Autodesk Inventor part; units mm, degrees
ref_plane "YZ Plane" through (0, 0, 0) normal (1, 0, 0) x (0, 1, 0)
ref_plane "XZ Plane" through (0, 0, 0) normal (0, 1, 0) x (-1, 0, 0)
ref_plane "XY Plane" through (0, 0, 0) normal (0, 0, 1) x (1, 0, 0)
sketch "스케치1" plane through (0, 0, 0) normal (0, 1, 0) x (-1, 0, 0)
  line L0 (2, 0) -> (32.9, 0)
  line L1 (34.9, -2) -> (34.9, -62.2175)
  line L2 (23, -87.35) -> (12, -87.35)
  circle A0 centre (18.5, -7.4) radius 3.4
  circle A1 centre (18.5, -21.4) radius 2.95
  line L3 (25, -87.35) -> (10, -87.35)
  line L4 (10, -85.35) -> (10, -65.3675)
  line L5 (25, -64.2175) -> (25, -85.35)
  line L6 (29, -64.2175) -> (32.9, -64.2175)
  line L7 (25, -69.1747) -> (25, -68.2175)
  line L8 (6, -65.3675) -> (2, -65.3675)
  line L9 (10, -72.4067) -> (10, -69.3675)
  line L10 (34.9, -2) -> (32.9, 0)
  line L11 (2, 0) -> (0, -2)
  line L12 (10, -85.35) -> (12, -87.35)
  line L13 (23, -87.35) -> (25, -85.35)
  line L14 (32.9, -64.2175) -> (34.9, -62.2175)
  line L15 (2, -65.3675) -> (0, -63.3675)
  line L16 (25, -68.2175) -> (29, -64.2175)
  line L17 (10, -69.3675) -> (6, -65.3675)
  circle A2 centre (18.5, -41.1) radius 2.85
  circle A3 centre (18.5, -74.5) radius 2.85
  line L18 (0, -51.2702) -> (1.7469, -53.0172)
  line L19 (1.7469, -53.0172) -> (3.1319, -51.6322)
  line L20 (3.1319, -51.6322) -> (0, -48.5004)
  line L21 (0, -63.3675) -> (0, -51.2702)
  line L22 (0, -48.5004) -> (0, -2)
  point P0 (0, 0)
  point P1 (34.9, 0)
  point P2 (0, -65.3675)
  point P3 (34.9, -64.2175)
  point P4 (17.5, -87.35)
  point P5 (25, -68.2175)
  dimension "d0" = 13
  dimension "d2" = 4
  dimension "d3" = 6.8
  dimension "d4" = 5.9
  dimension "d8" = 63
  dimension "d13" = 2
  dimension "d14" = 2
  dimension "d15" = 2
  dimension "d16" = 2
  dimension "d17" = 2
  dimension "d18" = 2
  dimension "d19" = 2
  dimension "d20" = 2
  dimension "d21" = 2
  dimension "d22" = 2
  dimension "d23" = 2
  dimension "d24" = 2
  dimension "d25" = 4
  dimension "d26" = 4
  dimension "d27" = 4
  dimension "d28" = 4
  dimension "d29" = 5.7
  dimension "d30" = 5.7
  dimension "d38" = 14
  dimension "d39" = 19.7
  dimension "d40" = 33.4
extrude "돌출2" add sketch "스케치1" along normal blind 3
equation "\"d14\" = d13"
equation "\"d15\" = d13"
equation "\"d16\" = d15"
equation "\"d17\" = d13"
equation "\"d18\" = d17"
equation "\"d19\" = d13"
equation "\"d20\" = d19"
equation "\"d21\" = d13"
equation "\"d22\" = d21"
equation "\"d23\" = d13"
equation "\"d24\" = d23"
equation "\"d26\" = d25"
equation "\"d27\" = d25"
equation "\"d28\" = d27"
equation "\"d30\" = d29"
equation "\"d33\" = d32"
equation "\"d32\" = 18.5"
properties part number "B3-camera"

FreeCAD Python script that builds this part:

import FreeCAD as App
import Part
import Sketcher
Q = App.Units.Quantity

doc = App.newDocument("Part")
params = doc.addObject("Spreadsheet::Sheet", "Params")
for row, (alias, value) in enumerate([
    ("sketch1_diameter", "5.7 mm"),
    ("sketch1_diameter2", "5.9 mm"),
    ("sketch1_diameter3", "6.8 mm"),
    ("sketch1_width", "4 mm"),
    ("pad1_length", "3 mm"),
], start=1):
    params.set(f"A{row}", alias)
    params.set(f"B{row}", "=" + value)
    params.setAlias(f"B{row}", alias)

body = doc.addObject("PartDesign::Body", "Body")

# Sketch on XZ plane
sketch1 = body.newObject("Sketcher::SketchObject", "Sketch")
sketch1.AttachmentSupport = (doc.getObject("XZ_Plane"), [""])
sketch1.MapMode = "FlatFace"
sketch1.addGeometry([
    Part.LineSegment(App.Vector(-32.9, 0, 0), App.Vector(-2, 0, 0)),  # 0
    Part.LineSegment(App.Vector(-2, 0, 0), App.Vector(0, -2, 0)),  # 1
    Part.LineSegment(App.Vector(0, -2, 0), App.Vector(0, -48.5004, 0)),  # 2
    Part.LineSegment(App.Vector(0, -48.5004, 0), App.Vector(-3.1319, -51.6322, 0)),  # 3
    Part.LineSegment(App.Vector(-3.1319, -51.6322, 0), App.Vector(-1.7469, -53.0172, 0)),  # 4
    Part.LineSegment(App.Vector(-1.7469, -53.0172, 0), App.Vector(0, -51.2702, 0)),  # 5
    Part.LineSegment(App.Vector(0, -51.2702, 0), App.Vector(0, -63.3675, 0)),  # 6
    Part.LineSegment(App.Vector(0, -63.3675, 0), App.Vector(-2, -65.3675, 0)),  # 7
    Part.LineSegment(App.Vector(-2, -65.3675, 0), App.Vector(-6, -65.3675, 0)),  # 8
    Part.LineSegment(App.Vector(-6, -65.3675, 0), App.Vector(-10, -69.3675, 0)),  # 9
    Part.LineSegment(App.Vector(-10, -69.3675, 0), App.Vector(-10, -85.35, 0)),  # 10
    Part.LineSegment(App.Vector(-10, -85.35, 0), App.Vector(-12, -87.35, 0)),  # 11
    Part.LineSegment(App.Vector(-12, -87.35, 0), App.Vector(-23, -87.35, 0)),  # 12
    Part.LineSegment(App.Vector(-23, -87.35, 0), App.Vector(-25, -85.35, 0)),  # 13
    Part.LineSegment(App.Vector(-25, -85.35, 0), App.Vector(-25, -68.2175, 0)),  # 14
    Part.LineSegment(App.Vector(-25, -68.2175, 0), App.Vector(-29, -64.2175, 0)),  # 15
    Part.LineSegment(App.Vector(-29, -64.2175, 0), App.Vector(-32.9, -64.2175, 0)),  # 16
    Part.LineSegment(App.Vector(-32.9, -64.2175, 0), App.Vector(-34.9, -62.2175, 0)),  # 17
    Part.LineSegment(App.Vector(-34.9, -62.2175, 0), App.Vector(-34.9, -2, 0)),  # 18
    Part.LineSegment(App.Vector(-34.9, -2, 0), App.Vector(-32.9, 0, 0)),  # 19
    Part.Circle(App.Vector(-18.5, -74.5, 0), App.Vector(0, 0, 1), 2.85),  # 20
    Part.Circle(App.Vector(-18.5, -41.1, 0), App.Vector(0, 0, 1), 2.85),  # 21
    Part.Circle(App.Vector(-18.5, -21.4, 0), App.Vector(0, 0, 1), 2.95),  # 22
    Part.Circle(App.Vector(-18.5, -7.4, 0), App.Vector(0, 0, 1), 3.4),  # 23
], False)
sketch1.addConstraint([
    Sketcher.Constraint("Coincident", 0, 2, 1, 1),
    Sketcher.Constraint("Coincident", 1, 2, 2, 1),
    Sketcher.Constraint("Coincident", 2, 2, 3, 1),
    Sketcher.Constraint("Coincident", 3, 2, 4, 1),
    Sketcher.Constraint("Coincident", 4, 2, 5, 1),
    Sketcher.Constraint("Coincident", 5, 2, 6, 1),
    Sketcher.Constraint("Coincident", 6, 2, 7, 1),
    Sketcher.Constraint("Coincident", 7, 2, 8, 1),
    Sketcher.Constraint("Coincident", 8, 2, 9, 1),
    Sketcher.Constraint("Coincident", 9, 2, 10, 1),
    Sketcher.Constraint("Coincident", 10, 2, 11, 1),
    Sketcher.Constraint("Coincident", 11, 2, 12, 1),
    Sketcher.Constraint("Coincident", 12, 2, 13, 1),
    Sketcher.Constraint("Coincident", 13, 2, 14, 1),
    Sketcher.Constraint("Coincident", 14, 2, 15, 1),
    Sketcher.Constraint("Coincident", 15, 2, 16, 1),
    Sketcher.Constraint("Coincident", 16, 2, 17, 1),
    Sketcher.Constraint("Coincident", 17, 2, 18, 1),
    Sketcher.Constraint("Coincident", 18, 2, 19, 1),
    Sketcher.Constraint("Coincident", 19, 2, 0, 1),
    Sketcher.Constraint("Horizontal", 0),
    Sketcher.Constraint("Vertical", 2),
    Sketcher.Constraint("Vertical", 6),
    Sketcher.Constraint("Horizontal", 8),
    Sketcher.Constraint("Vertical", 10),
    Sketcher.Constraint("Horizontal", 12),
    Sketcher.Constraint("Vertical", 14),
    Sketcher.Constraint("Horizontal", 16),
    Sketcher.Constraint("Vertical", 18),
    Sketcher.Constraint("Equal", 20, 21),
    Sketcher.Constraint("PointOnObject", 0, 2, -1),
    Sketcher.Constraint("PointOnObject", 1, 2, -2),
    Sketcher.Constraint("PointOnObject", 5, 2, -2),
    Sketcher.Constraint("Perpendicular", 1, 3),
    Sketcher.Constraint("Perpendicular", 3, 4),
    Sketcher.Constraint("Perpendicular", 4, 5),
    Sketcher.Constraint("Parallel", 5, 7),
    Sketcher.Constraint("Parallel", 7, 9),
    Sketcher.Constraint("Parallel", 9, 11),
    Sketcher.Constraint("Perpendicular", 11, 13),
    Sketcher.Constraint("Parallel", 13, 15),
    Sketcher.Constraint("Parallel", 15, 17),
    Sketcher.Constraint("Perpendicular", 17, 19),
    Sketcher.Constraint("Horizontal", 10, 2, 13, 2),
    Sketcher.Constraint("Horizontal", 1, 2, 18, 2),
    Sketcher.Constraint("Vertical", 20, 3, 21, 3),
    Sketcher.Constraint("Vertical", 21, 3, 22, 3),
    Sketcher.Constraint("Vertical", 22, 3, 23, 3),
    Sketcher.Constraint("Vertical", 0, 2, 7, 2),
    Sketcher.Constraint("Vertical", 16, 2, 19, 2),
    Sketcher.Constraint("Equal", 1, 7),
    Sketcher.Constraint("Equal", 7, 11),
    Sketcher.Constraint("Equal", 9, 15),
    Sketcher.Constraint("Diameter", 20, Q("5.7 mm")),
    Sketcher.Constraint("Diameter", 22, Q("5.9 mm")),
    Sketcher.Constraint("Diameter", 23, Q("6.8 mm")),
    Sketcher.Constraint("DistanceX", 8, 2, 8, 1, Q("4 mm")),
    Sketcher.Constraint("DistanceX", 0, 2, -1, 1, Q("2 mm")),
    Sketcher.Constraint("DistanceY", 22, 3, 23, 3, Q("14 mm")),
    Sketcher.Constraint("DistanceX", 9, 2, 8, 2, Q("4 mm")),
    Sketcher.Constraint("DistanceX", 12, 2, 10, 2, Q("13 mm")),
    Sketcher.Constraint("DistanceY", 20, 3, 21, 3, Q("33.4 mm")),
    Sketcher.Constraint("DistanceY", 21, 3, 22, 3, Q("19.7 mm")),
    Sketcher.Constraint("DistanceX", 17, 2, 15, 2, Q("5.9 mm")),
    Sketcher.Constraint("DistanceX", 20, 3, -1, 1, Q("18.5 mm")),
    Sketcher.Constraint("DistanceY", 20, 3, -1, 1, Q("74.5 mm")),
    Sketcher.Constraint("DistanceY", 10, 2, -1, 1, Q("85.35 mm")),
    Sketcher.Constraint("DistanceY", 9, 2, 14, 2, Q("1.15 mm")),
    Sketcher.Constraint("Distance", 3, Q("4.429 mm")),
    Sketcher.Constraint("DistanceY", 2, 2, 2, 1, Q("46.5004 mm")),
    Sketcher.Constraint("DistanceY", 6, 2, 6, 1, Q("12.0973 mm")),
    Sketcher.Constraint("DistanceY", 10, 2, 10, 1, Q("15.9825 mm")),
])
sketch1.setExpression("Constraints[53]", "Params.sketch1_diameter")
sketch1.setExpression("Constraints[54]", "Params.sketch1_diameter2")
sketch1.setExpression("Constraints[55]", "Params.sketch1_diameter3")
sketch1.setExpression("Constraints[56]", "Params.sketch1_width")
pad1 = body.newObject("PartDesign::Pad", "Pad")
pad1.Profile = sketch1
pad1.setExpression("Length", "Params.pad1_length")
pad1.Reversed = True

doc.recompute()
